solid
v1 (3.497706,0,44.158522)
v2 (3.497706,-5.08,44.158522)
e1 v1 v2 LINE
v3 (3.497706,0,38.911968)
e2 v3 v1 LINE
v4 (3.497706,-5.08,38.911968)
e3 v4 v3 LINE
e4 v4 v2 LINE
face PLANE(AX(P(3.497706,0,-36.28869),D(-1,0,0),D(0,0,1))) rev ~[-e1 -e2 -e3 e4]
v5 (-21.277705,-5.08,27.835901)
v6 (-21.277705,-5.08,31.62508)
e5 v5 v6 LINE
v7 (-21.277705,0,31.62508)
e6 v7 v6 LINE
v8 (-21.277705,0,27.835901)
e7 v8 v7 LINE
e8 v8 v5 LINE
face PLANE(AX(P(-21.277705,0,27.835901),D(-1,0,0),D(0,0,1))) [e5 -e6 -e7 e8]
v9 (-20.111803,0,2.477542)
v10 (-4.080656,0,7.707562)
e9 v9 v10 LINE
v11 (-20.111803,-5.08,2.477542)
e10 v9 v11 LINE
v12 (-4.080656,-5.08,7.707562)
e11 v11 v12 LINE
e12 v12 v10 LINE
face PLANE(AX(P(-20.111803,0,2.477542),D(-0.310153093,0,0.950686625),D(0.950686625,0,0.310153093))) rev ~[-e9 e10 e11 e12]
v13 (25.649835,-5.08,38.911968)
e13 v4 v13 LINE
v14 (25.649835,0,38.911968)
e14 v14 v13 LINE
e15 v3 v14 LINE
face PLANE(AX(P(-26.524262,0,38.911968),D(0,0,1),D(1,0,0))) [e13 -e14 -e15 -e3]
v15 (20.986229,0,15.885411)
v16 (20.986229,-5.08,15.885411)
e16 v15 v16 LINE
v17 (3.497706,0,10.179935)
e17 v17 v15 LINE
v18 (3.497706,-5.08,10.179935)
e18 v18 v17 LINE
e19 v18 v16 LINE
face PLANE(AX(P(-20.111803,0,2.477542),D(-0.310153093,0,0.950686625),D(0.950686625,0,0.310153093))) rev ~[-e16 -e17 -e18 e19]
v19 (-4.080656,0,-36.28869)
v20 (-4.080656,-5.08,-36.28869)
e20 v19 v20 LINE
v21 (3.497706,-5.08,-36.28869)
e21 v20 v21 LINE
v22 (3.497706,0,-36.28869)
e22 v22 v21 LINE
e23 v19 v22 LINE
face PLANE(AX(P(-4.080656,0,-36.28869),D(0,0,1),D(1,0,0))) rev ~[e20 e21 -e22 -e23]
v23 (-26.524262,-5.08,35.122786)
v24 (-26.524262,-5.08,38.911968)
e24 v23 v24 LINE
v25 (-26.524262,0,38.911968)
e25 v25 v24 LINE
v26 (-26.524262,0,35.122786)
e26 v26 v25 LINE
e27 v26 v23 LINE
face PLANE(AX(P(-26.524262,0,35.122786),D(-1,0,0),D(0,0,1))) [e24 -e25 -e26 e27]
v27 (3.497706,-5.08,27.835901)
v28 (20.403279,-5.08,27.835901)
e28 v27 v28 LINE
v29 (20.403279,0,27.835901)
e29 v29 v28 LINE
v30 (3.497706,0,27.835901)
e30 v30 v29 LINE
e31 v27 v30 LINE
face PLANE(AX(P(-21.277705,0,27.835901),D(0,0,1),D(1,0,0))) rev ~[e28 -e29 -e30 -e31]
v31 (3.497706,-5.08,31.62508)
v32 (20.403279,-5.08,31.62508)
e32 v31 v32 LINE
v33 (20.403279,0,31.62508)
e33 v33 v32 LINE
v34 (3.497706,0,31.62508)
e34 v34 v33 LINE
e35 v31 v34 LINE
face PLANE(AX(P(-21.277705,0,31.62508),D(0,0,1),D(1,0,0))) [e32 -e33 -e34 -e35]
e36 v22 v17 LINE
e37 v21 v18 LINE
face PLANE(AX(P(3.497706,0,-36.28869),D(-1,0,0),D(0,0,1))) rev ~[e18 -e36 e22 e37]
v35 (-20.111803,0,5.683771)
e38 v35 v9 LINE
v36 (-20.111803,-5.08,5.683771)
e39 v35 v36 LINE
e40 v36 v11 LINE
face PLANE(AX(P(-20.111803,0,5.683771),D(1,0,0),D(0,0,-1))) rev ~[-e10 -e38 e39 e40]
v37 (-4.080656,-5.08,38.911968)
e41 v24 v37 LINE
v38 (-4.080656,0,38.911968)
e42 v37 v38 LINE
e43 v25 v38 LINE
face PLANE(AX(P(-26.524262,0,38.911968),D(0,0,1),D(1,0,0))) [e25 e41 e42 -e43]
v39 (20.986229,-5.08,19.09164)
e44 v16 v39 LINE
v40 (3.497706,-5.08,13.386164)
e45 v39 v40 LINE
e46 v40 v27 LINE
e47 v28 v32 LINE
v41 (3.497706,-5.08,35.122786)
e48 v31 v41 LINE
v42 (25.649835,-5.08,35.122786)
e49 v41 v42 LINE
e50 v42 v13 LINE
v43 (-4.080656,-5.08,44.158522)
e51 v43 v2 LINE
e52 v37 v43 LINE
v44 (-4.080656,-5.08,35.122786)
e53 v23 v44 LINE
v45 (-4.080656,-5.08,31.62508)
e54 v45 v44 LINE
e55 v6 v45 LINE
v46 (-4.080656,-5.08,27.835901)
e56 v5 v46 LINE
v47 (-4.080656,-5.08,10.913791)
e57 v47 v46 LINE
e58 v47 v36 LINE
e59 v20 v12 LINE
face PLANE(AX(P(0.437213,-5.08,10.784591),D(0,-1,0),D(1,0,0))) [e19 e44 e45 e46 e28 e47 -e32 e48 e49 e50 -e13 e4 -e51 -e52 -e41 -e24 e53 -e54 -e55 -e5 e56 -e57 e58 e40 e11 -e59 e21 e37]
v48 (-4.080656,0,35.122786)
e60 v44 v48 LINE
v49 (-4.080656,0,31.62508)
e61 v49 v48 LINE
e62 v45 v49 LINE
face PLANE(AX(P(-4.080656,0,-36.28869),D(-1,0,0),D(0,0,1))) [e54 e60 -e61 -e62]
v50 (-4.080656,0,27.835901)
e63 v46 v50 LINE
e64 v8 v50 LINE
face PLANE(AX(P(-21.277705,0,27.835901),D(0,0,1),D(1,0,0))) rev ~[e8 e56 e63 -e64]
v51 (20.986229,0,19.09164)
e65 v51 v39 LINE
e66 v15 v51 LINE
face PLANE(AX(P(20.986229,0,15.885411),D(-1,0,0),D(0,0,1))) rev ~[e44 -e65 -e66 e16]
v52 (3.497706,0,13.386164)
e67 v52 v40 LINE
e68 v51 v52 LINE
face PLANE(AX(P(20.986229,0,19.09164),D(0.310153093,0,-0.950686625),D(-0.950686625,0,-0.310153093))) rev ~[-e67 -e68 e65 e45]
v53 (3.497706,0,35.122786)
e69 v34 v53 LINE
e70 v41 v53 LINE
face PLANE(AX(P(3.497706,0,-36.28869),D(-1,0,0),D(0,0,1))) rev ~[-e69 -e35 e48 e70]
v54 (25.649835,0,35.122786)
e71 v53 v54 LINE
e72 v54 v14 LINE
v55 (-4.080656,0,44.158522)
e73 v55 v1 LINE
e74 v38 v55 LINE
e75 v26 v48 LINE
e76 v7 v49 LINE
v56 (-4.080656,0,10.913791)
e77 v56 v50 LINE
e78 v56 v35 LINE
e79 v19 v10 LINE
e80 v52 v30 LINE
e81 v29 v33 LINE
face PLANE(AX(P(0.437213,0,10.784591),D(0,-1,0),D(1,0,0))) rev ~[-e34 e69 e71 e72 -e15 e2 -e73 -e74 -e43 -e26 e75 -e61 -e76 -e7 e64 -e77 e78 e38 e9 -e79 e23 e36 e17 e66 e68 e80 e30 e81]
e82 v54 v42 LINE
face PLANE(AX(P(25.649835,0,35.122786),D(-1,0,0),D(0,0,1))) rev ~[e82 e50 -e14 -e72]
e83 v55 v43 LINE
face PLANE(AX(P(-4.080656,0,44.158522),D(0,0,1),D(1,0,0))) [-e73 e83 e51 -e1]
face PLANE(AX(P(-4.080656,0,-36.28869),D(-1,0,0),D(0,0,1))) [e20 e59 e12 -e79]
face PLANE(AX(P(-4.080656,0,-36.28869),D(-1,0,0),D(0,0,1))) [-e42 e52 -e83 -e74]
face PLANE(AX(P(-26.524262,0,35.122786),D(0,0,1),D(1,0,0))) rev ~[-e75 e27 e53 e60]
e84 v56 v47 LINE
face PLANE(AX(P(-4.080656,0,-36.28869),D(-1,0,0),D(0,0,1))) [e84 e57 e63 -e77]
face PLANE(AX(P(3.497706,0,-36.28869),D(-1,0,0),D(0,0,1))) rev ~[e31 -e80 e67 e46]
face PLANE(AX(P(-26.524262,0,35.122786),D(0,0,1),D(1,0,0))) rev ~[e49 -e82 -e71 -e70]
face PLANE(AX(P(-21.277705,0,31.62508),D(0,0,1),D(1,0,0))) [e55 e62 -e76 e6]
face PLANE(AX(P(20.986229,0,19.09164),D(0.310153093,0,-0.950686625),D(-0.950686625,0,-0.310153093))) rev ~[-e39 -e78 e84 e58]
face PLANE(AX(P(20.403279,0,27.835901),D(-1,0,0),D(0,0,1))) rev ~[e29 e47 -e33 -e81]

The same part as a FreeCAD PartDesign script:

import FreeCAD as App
import Part
import Sketcher
from FreeCAD import Vector
Q = App.Units.Quantity

doc = App.newDocument("Part")
body = doc.addObject("PartDesign::Body", "Body")

sketch1 = body.newObject("Sketcher::SketchObject", "Sketch")
sketch1.AttachmentSupport = (doc.getObject("XZ_Plane"), [""])
sketch1.MapMode = "FlatFace"
sketch1.addGeometry([
    Part.LineSegment(Vector(-4, 44, 0), Vector(-4, -36, 0)),
    Part.LineSegment(Vector(-4, -36, 0), Vector(3, -36, 0)),
    Part.LineSegment(Vector(3, -36, 0), Vector(3, 44, 0)),
    Part.LineSegment(Vector(3, 44, 0), Vector(-4, 44, 0)),
], False)
sketch1.addConstraint([
    Sketcher.Constraint("Coincident", 0, 2, 1, 1),
    Sketcher.Constraint("Coincident", 1, 2, 2, 1),
    Sketcher.Constraint("Coincident", 2, 2, 3, 1),
    Sketcher.Constraint("Coincident", 3, 2, 0, 1),
    Sketcher.Constraint("Vertical", 0),
    Sketcher.Constraint("Horizontal", 1),
    Sketcher.Constraint("Vertical", 2),
    Sketcher.Constraint("Horizontal", 3),
    Sketcher.Constraint("DistanceX", 1, 1, 1, 2, 7.578362),
    Sketcher.Constraint("DistanceY", 0, 2, 0, 1, 80.447212),
    Sketcher.Constraint("DistanceY", 0, 2, -1, 1, 36.28869),
    Sketcher.Constraint("DistanceX", 0, 2, -1, 1, 4.080656),
])
pad1 = body.newObject("PartDesign::Pad", "Pad")
pad1.Profile = sketch1
pad1.Length = Q("0.2 in")

sketch2 = body.newObject("Sketcher::SketchObject", "Sketch001")
sketch2.AttachmentSupport = (doc.getObject("XZ_Plane"), [""])
sketch2.MapMode = "FlatFace"
sketch2.addGeometry([
    Part.LineSegment(Vector(-26.5, 38.9, 0), Vector(-26.5, 35.1, 0)),
    Part.LineSegment(Vector(-26.5, 35.1, 0), Vector(25.6, 35.1, 0)),
    Part.LineSegment(Vector(25.6, 35.1, 0), Vector(25.6, 38.9, 0)),
    Part.LineSegment(Vector(25.6, 38.9, 0), Vector(-26.5, 38.9, 0)),
    Part.LineSegment(Vector(-21.3, 31.6, 0), Vector(-21.3, 27.8, 0)),
    Part.LineSegment(Vector(-21.3, 27.8, 0), Vector(20.4, 27.8, 0)),
    Part.LineSegment(Vector(20.4, 27.8, 0), Vector(20.4, 31.6, 0)),
    Part.LineSegment(Vector(20.4, 31.6, 0), Vector(-21.3, 31.6, 0)),
], False)
sketch2.addConstraint([
    Sketcher.Constraint("Coincident", 0, 2, 1, 1),
    Sketcher.Constraint("Coincident", 1, 2, 2, 1),
    Sketcher.Constraint("Coincident", 2, 2, 3, 1),
    Sketcher.Constraint("Coincident", 3, 2, 0, 1),
    Sketcher.Constraint("Coincident", 4, 2, 5, 1),
    Sketcher.Constraint("Coincident", 5, 2, 6, 1),
    Sketcher.Constraint("Coincident", 6, 2, 7, 1),
    Sketcher.Constraint("Coincident", 7, 2, 4, 1),
    Sketcher.Constraint("Vertical", 0),
    Sketcher.Constraint("Horizontal", 1),
    Sketcher.Constraint("Vertical", 2),
    Sketcher.Constraint("Horizontal", 3),
    Sketcher.Constraint("Vertical", 4),
    Sketcher.Constraint("Horizontal", 5),
    Sketcher.Constraint("Vertical", 6),
    Sketcher.Constraint("Horizontal", 7),
    Sketcher.Constraint("DistanceY", 4, 2, 4, 1, 3.789179),
    Sketcher.Constraint("DistanceY", -1, 1, 4, 2, 27.835901),
    Sketcher.Constraint("DistanceX", 1, 1, 1, 2, 52.174097),
    Sketcher.Constraint("DistanceX", 5, 1, 5, 2, 41.680984),
    Sketcher.Constraint("DistanceY", 0, 2, 0, 1, 3.789182),
    Sketcher.Constraint("DistanceY", -1, 1, 2, 2, 38.911968),
    Sketcher.Constraint("DistanceX", -1, 1, 5, 2, 20.403279),
    Sketcher.Constraint("DistanceX", 4, 2, 1, 2, 46.92754),
])
pad2 = body.newObject("PartDesign::Pad", "Pad001")
pad2.Profile = sketch2
pad2.Length = Q("0.2 in")

sketch3 = body.newObject("Sketcher::SketchObject", "Sketch002")
sketch3.AttachmentSupport = (doc.getObject("XZ_Plane"), [""])
sketch3.MapMode = "FlatFace"
sketch3.addGeometry([
    Part.LineSegment(Vector(-26.5, 38.9, 0), Vector(-26.5, 35.1, 0)),
    Part.LineSegment(Vector(-26.5, 35.1, 0), Vector(25.6, 35.1, 0)),
    Part.LineSegment(Vector(25.6, 35.1, 0), Vector(25.6, 38.9, 0)),
    Part.LineSegment(Vector(25.6, 38.9, 0), Vector(-26.5, 38.9, 0)),
    Part.LineSegment(Vector(-21.3, 31.6, 0), Vector(-21.3, 27.8, 0)),
    Part.LineSegment(Vector(-21.3, 27.8, 0), Vector(20.4, 27.8, 0)),
    Part.LineSegment(Vector(20.4, 27.8, 0), Vector(20.4, 31.6, 0)),
    Part.LineSegment(Vector(20.4, 31.6, 0), Vector(-21.3, 31.6, 0)),
], False)
sketch3.addConstraint([
    Sketcher.Constraint("Coincident", 0, 2, 1, 1),
    Sketcher.Constraint("Coincident", 1, 2, 2, 1),
    Sketcher.Constraint("Coincident", 2, 2, 3, 1),
    Sketcher.Constraint("Coincident", 3, 2, 0, 1),
    Sketcher.Constraint("Coincident", 4, 2, 5, 1),
    Sketcher.Constraint("Coincident", 5, 2, 6, 1),
    Sketcher.Constraint("Coincident", 6, 2, 7, 1),
    Sketcher.Constraint("Coincident", 7, 2, 4, 1),
    Sketcher.Constraint("Vertical", 0),
    Sketcher.Constraint("Horizontal", 1),
    Sketcher.Constraint("Vertical", 2),
    Sketcher.Constraint("Horizontal", 3),
    Sketcher.Constraint("Vertical", 4),
    Sketcher.Constraint("Horizontal", 5),
    Sketcher.Constraint("Vertical", 6),
    Sketcher.Constraint("Horizontal", 7),
    Sketcher.Constraint("DistanceY", 4, 2, 4, 1, 3.789179),
    Sketcher.Constraint("DistanceY", -1, 1, 4, 2, 27.835901),
    Sketcher.Constraint("DistanceX", 1, 1, 1, 2, 52.174097),
    Sketcher.Constraint("DistanceX", 5, 1, 5, 2, 41.680984),
    Sketcher.Constraint("DistanceY", 0, 2, 0, 1, 3.789182),
    Sketcher.Constraint("DistanceY", -1, 1, 2, 2, 38.911968),
    Sketcher.Constraint("DistanceX", -1, 1, 5, 2, 20.403279),
    Sketcher.Constraint("DistanceX", 4, 2, 1, 2, 46.92754),
])
pad3 = body.newObject("PartDesign::Pad", "Pad002")
pad3.Profile = sketch3
pad3.Length = Q("0.2 in")

sketch4 = body.newObject("Sketcher::SketchObject", "Sketch003")
sketch4.AttachmentSupport = (doc.getObject("XZ_Plane"), [""])
sketch4.MapMode = "FlatFace"
sketch4.addGeometry([
    Part.LineSegment(Vector(21, 19.1, 0), Vector(-20.1, 5.7, 0)),
    Part.LineSegment(Vector(-20.1, 5.7, 0), Vector(-20.1, 2.5, 0)),
    Part.LineSegment(Vector(-20.1, 2.5, 0), Vector(21, 15.9, 0)),
    Part.LineSegment(Vector(21, 15.9, 0), Vector(21, 19.1, 0)),
], False)
sketch4.addConstraint([
    Sketcher.Constraint("Coincident", 0, 2, 1, 1),
    Sketcher.Constraint("Coincident", 1, 2, 2, 1),
    Sketcher.Constraint("Coincident", 2, 2, 3, 1),
    Sketcher.Constraint("Coincident", 3, 2, 0, 1),
    Sketcher.Constraint("Vertical", 1),
    Sketcher.Constraint("Vertical", 3),
    Sketcher.Constraint("Parallel", 0, 2),
    Sketcher.Constraint("DistanceY", 1, 2, 1, 1, 3.206229),
    Sketcher.Constraint("DistanceY", 1, 2, 3, 2, 16.614098),
    Sketcher.Constraint("Distance", 0, 43.229841),
    Sketcher.Constraint("DistanceY", -1, 1, 0, 2, 5.683771),
    Sketcher.Constraint("DistanceX", -1, 1, 2, 2, 20.986229),
])
pad4 = body.newObject("PartDesign::Pad", "Pad003")
pad4.Profile = sketch4
pad4.Length = Q("0.2 in")

doc.recompute()
